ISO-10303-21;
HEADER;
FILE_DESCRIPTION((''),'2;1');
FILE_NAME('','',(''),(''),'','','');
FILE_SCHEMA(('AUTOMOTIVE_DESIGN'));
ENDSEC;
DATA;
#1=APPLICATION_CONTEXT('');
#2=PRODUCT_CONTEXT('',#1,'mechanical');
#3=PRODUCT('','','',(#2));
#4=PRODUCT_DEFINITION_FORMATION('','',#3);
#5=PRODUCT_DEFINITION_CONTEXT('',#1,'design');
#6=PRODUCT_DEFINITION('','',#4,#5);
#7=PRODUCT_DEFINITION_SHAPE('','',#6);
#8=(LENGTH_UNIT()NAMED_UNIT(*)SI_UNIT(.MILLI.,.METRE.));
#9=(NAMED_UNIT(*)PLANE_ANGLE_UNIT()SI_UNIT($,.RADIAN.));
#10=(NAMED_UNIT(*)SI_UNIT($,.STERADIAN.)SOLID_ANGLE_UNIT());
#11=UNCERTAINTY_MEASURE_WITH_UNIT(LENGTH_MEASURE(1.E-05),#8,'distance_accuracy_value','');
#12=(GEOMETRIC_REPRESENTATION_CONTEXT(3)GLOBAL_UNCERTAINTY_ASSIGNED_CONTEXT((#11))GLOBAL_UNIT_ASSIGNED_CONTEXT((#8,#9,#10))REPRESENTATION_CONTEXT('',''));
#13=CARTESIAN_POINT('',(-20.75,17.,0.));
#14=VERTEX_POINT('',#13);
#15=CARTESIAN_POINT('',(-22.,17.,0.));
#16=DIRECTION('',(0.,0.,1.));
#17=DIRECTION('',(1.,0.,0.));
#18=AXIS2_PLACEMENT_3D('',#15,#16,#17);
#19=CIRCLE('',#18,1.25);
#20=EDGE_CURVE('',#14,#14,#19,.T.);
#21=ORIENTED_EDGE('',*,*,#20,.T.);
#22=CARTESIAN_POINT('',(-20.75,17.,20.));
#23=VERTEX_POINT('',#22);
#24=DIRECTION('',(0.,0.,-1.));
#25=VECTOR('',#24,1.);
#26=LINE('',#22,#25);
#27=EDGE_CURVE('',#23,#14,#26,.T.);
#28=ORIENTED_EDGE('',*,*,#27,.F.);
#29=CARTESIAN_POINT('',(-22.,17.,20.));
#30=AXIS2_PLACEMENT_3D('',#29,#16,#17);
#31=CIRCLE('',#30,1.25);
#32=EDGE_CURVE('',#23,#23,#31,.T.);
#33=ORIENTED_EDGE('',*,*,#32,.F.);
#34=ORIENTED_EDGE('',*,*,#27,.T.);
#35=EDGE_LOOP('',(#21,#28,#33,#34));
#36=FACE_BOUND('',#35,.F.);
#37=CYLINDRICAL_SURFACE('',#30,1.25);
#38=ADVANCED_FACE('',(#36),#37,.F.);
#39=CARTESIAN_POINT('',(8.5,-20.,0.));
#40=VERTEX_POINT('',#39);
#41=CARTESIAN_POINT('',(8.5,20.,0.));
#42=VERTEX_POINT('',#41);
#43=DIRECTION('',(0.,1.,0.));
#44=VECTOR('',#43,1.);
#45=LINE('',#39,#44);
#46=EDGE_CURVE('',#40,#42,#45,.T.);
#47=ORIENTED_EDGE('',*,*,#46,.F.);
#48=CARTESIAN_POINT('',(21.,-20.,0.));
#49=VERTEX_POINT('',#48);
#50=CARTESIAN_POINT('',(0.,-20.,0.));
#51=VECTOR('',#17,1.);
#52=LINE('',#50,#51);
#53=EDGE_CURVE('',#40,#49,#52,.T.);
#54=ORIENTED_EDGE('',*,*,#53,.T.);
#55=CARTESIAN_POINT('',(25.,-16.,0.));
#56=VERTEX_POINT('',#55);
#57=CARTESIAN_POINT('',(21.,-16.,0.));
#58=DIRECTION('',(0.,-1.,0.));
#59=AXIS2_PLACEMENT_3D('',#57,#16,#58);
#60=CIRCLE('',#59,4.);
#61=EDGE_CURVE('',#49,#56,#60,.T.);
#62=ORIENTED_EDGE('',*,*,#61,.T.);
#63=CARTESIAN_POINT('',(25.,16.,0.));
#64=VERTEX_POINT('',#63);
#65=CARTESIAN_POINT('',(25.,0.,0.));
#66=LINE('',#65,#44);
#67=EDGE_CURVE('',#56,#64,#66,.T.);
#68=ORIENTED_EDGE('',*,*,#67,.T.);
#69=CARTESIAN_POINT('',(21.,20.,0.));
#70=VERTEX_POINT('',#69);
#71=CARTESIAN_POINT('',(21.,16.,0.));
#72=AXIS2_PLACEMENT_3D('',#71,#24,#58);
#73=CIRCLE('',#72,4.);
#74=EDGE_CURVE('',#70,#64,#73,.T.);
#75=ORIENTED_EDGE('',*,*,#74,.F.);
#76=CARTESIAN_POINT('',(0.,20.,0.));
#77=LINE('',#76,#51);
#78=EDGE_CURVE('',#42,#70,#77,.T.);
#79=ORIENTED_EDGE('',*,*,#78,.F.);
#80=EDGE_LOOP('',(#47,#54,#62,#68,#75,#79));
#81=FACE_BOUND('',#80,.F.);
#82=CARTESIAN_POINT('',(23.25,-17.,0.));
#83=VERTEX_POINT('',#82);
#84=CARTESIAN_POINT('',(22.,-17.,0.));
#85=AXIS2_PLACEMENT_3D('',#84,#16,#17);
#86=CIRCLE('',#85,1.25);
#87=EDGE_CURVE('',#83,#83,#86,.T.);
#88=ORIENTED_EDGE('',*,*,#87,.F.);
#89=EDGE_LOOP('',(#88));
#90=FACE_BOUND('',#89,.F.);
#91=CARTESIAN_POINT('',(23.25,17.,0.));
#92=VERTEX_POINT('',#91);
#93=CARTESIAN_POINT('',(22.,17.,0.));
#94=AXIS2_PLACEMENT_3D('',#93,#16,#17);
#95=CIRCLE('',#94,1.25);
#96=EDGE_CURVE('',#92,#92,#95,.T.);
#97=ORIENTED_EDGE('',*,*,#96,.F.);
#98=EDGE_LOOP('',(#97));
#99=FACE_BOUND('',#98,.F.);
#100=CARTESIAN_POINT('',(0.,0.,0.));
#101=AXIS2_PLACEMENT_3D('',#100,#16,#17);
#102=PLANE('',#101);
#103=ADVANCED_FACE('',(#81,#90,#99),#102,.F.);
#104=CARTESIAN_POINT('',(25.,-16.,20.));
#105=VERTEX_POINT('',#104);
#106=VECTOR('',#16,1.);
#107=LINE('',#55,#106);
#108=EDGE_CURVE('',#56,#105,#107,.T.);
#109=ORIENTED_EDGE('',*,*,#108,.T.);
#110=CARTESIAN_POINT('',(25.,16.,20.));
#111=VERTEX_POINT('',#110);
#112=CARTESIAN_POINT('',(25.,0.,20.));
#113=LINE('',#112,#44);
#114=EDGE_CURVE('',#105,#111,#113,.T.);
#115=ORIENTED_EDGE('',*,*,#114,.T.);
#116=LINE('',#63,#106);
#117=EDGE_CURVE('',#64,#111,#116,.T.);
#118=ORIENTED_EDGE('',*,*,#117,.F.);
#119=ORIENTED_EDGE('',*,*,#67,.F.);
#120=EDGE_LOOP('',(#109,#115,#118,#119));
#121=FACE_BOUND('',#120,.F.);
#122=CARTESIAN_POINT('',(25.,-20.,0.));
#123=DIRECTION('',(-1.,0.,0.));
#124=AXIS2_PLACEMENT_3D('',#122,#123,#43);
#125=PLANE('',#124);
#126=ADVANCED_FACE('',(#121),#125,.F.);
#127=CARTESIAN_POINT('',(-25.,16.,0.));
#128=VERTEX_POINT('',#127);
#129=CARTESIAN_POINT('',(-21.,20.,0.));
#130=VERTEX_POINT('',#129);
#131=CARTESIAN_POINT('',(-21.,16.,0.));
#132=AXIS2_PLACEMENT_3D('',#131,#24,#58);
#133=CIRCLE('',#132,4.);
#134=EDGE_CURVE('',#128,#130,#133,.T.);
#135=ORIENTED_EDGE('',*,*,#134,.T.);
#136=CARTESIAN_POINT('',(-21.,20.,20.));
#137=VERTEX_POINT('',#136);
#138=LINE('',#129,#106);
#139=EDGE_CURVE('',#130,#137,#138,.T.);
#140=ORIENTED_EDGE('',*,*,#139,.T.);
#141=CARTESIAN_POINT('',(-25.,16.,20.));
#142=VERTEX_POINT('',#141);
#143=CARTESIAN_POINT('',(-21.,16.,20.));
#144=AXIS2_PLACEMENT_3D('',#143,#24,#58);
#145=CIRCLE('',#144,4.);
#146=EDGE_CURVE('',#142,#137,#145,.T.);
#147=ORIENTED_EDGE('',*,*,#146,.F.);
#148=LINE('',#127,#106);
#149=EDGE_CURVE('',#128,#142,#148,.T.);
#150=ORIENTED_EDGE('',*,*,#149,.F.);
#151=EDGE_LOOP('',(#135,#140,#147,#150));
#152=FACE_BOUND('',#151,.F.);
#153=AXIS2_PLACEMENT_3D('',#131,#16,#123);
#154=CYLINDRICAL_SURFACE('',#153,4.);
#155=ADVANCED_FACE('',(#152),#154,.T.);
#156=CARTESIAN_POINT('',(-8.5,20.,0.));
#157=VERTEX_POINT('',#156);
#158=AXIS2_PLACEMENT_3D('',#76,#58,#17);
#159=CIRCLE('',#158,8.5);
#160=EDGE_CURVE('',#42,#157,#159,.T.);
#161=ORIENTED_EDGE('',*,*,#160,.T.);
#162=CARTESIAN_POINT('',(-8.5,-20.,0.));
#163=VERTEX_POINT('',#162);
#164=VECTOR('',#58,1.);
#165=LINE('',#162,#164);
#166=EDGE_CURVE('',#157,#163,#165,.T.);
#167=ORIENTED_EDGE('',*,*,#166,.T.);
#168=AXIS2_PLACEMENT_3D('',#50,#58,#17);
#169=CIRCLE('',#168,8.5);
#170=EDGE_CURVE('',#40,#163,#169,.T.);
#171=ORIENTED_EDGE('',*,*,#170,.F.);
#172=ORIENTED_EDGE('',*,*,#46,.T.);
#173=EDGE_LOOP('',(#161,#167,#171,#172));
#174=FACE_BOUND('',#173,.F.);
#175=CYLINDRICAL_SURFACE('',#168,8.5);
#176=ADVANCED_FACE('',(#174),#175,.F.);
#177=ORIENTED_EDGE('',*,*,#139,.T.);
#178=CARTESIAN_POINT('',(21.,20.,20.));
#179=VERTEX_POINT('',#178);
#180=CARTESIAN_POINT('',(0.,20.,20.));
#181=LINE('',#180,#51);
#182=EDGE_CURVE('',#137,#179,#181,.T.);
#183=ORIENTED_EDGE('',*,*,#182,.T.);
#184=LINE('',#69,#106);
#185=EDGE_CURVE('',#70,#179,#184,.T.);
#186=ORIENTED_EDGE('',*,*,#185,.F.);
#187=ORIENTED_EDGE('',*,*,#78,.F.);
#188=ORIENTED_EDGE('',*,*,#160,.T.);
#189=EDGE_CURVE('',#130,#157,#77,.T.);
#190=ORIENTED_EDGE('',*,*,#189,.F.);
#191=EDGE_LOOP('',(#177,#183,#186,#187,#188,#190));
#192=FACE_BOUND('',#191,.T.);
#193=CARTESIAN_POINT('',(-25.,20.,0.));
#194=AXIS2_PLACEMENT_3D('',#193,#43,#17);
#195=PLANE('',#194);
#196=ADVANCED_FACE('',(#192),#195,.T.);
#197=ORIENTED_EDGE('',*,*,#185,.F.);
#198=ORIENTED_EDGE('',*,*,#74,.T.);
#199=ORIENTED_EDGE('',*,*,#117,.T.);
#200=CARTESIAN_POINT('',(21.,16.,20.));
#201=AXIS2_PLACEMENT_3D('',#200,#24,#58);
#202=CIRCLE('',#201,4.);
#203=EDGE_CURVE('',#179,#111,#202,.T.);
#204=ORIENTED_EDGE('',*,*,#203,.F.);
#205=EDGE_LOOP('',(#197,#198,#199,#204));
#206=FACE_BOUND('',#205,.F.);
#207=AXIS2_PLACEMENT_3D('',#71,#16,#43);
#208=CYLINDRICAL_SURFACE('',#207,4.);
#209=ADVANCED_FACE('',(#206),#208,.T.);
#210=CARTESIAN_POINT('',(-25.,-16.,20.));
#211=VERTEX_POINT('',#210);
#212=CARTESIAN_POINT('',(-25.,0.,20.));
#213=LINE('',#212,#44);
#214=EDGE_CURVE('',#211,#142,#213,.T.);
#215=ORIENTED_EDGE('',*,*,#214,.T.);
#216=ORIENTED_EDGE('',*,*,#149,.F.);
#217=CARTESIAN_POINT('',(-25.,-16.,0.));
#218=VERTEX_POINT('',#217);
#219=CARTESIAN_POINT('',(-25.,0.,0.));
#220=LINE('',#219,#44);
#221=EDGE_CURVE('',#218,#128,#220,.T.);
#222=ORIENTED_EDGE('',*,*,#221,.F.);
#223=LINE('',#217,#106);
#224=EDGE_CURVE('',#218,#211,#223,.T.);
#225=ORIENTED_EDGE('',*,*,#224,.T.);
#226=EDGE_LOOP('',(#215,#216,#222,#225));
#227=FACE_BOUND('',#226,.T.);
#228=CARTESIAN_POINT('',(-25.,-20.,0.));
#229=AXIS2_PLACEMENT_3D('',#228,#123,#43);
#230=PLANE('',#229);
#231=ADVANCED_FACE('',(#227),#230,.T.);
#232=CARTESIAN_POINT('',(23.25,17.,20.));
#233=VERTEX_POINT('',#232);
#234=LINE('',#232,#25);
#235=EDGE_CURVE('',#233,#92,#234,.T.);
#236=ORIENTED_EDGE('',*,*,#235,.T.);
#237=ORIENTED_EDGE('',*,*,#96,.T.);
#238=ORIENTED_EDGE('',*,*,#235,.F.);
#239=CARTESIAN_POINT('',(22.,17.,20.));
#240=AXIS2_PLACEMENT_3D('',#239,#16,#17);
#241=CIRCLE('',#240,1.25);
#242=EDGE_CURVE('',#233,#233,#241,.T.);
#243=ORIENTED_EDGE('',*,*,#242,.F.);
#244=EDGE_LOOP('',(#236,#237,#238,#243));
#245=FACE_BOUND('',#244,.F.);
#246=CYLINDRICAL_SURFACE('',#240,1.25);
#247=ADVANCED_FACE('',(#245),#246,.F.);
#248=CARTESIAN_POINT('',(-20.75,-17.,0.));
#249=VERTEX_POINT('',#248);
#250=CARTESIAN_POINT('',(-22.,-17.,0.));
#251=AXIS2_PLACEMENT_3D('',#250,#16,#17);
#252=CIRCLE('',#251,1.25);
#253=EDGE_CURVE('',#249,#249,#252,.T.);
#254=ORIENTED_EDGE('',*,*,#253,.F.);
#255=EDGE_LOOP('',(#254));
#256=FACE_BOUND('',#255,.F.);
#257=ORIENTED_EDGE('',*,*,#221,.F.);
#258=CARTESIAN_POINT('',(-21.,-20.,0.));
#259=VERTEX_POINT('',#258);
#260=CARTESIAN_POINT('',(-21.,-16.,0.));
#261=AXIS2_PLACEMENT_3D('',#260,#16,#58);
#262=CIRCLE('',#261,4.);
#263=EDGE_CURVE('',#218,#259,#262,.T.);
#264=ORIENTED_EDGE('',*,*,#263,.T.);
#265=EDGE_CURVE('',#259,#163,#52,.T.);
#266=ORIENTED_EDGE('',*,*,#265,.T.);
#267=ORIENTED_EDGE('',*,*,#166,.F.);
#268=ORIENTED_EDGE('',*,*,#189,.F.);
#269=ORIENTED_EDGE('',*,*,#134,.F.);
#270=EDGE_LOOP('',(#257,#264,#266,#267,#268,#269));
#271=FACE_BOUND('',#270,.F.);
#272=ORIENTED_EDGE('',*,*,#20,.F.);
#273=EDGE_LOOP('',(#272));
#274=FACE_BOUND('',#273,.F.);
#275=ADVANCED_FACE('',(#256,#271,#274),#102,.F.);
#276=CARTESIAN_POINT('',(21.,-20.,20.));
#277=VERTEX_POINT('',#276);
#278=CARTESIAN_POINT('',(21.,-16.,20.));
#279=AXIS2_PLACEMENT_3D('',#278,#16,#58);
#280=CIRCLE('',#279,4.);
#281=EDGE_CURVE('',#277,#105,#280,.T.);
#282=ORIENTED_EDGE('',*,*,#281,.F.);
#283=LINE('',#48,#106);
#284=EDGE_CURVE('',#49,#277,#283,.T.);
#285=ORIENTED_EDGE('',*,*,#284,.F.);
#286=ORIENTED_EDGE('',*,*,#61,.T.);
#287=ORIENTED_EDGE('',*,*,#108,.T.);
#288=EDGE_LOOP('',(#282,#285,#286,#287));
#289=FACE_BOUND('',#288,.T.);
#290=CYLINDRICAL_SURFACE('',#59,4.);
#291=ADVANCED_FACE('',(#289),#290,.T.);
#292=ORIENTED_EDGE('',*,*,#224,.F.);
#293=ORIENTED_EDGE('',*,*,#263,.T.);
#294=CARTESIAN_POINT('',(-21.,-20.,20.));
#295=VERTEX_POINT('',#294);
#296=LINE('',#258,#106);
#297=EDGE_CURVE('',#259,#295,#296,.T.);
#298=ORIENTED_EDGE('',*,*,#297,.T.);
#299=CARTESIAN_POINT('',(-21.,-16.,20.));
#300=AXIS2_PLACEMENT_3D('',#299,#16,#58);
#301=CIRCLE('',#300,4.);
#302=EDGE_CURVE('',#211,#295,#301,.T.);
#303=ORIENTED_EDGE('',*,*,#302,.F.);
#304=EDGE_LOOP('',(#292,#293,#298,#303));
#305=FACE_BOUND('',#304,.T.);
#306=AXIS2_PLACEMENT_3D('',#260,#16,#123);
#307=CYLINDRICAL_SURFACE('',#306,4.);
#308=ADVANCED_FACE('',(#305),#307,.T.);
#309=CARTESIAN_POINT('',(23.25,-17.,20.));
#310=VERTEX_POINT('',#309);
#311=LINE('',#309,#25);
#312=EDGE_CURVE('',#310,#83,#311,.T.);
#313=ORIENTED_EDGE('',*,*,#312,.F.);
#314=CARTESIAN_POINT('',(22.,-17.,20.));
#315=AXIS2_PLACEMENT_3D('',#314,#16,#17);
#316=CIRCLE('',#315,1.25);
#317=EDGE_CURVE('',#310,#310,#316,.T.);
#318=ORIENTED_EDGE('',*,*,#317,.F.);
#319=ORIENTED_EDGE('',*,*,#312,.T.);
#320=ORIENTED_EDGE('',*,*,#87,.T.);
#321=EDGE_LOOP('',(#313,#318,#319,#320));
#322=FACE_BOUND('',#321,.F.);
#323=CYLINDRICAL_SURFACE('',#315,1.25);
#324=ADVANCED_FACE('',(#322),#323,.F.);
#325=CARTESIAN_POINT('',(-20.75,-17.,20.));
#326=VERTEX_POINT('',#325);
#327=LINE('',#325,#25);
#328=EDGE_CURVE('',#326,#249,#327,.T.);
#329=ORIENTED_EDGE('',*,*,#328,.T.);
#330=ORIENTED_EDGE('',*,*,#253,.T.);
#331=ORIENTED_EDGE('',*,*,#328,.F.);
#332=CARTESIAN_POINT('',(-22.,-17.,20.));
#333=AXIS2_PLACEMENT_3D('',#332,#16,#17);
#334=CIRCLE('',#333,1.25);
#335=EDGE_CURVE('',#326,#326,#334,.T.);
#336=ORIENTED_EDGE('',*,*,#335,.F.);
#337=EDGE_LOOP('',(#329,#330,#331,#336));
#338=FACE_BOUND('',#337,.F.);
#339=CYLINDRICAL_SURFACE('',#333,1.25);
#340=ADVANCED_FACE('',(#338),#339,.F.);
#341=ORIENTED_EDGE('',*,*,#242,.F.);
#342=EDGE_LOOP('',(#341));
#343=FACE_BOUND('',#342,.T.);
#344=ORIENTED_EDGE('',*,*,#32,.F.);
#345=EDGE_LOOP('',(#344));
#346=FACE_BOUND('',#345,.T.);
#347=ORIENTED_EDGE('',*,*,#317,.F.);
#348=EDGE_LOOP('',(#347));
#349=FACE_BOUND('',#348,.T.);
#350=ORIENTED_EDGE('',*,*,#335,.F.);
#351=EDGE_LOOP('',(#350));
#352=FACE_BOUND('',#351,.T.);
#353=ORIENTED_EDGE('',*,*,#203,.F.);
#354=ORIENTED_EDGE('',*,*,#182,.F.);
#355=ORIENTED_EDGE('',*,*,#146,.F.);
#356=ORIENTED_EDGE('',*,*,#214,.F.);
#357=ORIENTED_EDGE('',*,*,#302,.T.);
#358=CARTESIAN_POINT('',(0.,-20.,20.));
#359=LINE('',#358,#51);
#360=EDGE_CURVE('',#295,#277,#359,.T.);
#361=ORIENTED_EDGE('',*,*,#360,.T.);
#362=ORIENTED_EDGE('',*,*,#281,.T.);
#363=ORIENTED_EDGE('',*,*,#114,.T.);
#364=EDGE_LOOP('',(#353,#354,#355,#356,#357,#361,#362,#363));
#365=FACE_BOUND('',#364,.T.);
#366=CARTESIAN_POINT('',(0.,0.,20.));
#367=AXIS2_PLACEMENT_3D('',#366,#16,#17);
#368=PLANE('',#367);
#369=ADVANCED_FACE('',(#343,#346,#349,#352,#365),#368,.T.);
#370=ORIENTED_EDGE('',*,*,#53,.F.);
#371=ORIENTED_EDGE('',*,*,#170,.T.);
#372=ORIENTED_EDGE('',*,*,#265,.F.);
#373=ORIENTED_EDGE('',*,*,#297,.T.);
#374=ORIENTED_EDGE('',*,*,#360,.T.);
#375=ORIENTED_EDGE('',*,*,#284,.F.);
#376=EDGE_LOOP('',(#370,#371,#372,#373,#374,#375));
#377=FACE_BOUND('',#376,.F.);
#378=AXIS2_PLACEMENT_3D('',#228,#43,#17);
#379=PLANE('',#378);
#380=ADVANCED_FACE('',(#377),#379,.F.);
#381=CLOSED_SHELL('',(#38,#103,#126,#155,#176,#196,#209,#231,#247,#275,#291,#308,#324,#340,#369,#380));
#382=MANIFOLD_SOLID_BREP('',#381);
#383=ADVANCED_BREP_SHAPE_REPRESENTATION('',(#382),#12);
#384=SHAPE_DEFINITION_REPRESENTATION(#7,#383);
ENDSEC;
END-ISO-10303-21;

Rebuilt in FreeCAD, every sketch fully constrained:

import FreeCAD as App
import Part
import Sketcher

V = App.Vector
Q = App.Units.Quantity


def edges_at(feature, points):
    """Names of the edges that pass closest to the given points."""
    edges = feature.Shape.Edges
    near = lambda p: min(range(len(edges)), key=lambda i: edges[i].distToShape(Part.Vertex(*p))[0])
    return sorted({f"Edge{near(p) + 1}" for p in points})


def add_polygon(sketch, points):
    """Adds a closed chain of lines whose ends are joined by coincident constraints."""
    first, n = sketch.GeometryCount, len(points)
    for a, b in zip(points, points[1:] + points[:1]):
        sketch.addGeometry(Part.LineSegment(App.Vector(*a, 0), App.Vector(*b, 0)), False)
    for i in range(n):
        sketch.addConstraint(Sketcher.Constraint("Coincident", first + i, 2, first + (i + 1) % n, 1))

doc = App.newDocument("Part")
body = doc.addObject("PartDesign::Body", "Body")

# Sketch on XY plane
sketch1 = body.newObject("Sketcher::SketchObject", "Sketch")
sketch1.AttachmentSupport = (doc.getObject("XY_Plane"), [""])
sketch1.MapMode = "FlatFace"
add_polygon(sketch1, [(-25, 20), (-25, -20), (25, -20), (25, 20)])  # lines 0-3
sketch1.addConstraint([
    Sketcher.Constraint("Vertical", 0),
    Sketcher.Constraint("Horizontal", 1),
    Sketcher.Constraint("Vertical", 2),
    Sketcher.Constraint("Horizontal", 3),
    Sketcher.Constraint("Symmetric", 0, 2, 2, 2, -1, 1),
    Sketcher.Constraint("DistanceX", 1, 1, 1, 2, Q("50 mm")),
    Sketcher.Constraint("DistanceY", 0, 2, 0, 1, Q("40 mm")),
])
pad1 = body.newObject("PartDesign::Pad", "Pad")
pad1.Profile = sketch1
pad1.Length = 20

# Sketch on XZ plane
sketch2 = body.newObject("Sketcher::SketchObject", "Sketch001")
sketch2.AttachmentSupport = (doc.getObject("XZ_Plane"), [""])
sketch2.MapMode = "FlatFace"
sketch2.AttachmentOffset = App.Placement(V(0, 0, 20), App.Rotation())
sketch2.addGeometry(Part.Circle(V(0, 0, 0), V(0, 0, 1), 8.5), False)
sketch2.addConstraint([
    Sketcher.Constraint("Coincident", 0, 3, -1, 1),
    Sketcher.Constraint("Diameter", 0, Q("17 mm")),
])
pocket1 = body.newObject("PartDesign::Pocket", "Pocket")
pocket1.Profile = sketch2
pocket1.Type = "ThroughAll"

# Sketch on XY plane
sketch3 = body.newObject("Sketcher::SketchObject", "Sketch002")
sketch3.AttachmentSupport = (doc.getObject("XY_Plane"), [""])
sketch3.MapMode = "FlatFace"
sketch3.AttachmentOffset = App.Placement(V(0, 0, 20), App.Rotation())
sketch3.addGeometry([
    Part.Circle(V(-22, 17, 0), V(0, 0, 1), 1.25),
    Part.Circle(V(22, 17, 0), V(0, 0, 1), 1.25),
    Part.Circle(V(22, -17, 0), V(0, 0, 1), 1.25),
    Part.Circle(V(-22, -17, 0), V(0, 0, 1), 1.25),
], False)
sketch3.addConstraint([
    Sketcher.Constraint("Equal", 0, 1),
    Sketcher.Constraint("Equal", 1, 2),
    Sketcher.Constraint("Equal", 2, 3),
    Sketcher.Constraint("Symmetric", 0, 3, 2, 3, -1, 1),
    Sketcher.Constraint("Symmetric", 1, 3, 3, 3, -1, 1),
    Sketcher.Constraint("Symmetric", 0, 3, 1, 3, -2),
    Sketcher.Constraint("Diameter", 0, Q("2.5 mm")),
    Sketcher.Constraint("DistanceX", 0, 3, -1, 1, Q("22 mm")),
    Sketcher.Constraint("DistanceY", -1, 1, 0, 3, Q("17 mm")),
])
pocket2 = body.newObject("PartDesign::Pocket", "Pocket001")
pocket2.Profile = sketch3
pocket2.Type = "ThroughAll"
doc.recompute()

fillet = body.newObject("PartDesign::Fillet", "Fillet")
fillet.Base = (pocket2, edges_at(pocket2, [
    (-25, -20, 10),
    (-25, 20, 10),
    (25, 20, 10),
    (25, -20, 10),
]))
fillet.Radius = 4

doc.recompute()
